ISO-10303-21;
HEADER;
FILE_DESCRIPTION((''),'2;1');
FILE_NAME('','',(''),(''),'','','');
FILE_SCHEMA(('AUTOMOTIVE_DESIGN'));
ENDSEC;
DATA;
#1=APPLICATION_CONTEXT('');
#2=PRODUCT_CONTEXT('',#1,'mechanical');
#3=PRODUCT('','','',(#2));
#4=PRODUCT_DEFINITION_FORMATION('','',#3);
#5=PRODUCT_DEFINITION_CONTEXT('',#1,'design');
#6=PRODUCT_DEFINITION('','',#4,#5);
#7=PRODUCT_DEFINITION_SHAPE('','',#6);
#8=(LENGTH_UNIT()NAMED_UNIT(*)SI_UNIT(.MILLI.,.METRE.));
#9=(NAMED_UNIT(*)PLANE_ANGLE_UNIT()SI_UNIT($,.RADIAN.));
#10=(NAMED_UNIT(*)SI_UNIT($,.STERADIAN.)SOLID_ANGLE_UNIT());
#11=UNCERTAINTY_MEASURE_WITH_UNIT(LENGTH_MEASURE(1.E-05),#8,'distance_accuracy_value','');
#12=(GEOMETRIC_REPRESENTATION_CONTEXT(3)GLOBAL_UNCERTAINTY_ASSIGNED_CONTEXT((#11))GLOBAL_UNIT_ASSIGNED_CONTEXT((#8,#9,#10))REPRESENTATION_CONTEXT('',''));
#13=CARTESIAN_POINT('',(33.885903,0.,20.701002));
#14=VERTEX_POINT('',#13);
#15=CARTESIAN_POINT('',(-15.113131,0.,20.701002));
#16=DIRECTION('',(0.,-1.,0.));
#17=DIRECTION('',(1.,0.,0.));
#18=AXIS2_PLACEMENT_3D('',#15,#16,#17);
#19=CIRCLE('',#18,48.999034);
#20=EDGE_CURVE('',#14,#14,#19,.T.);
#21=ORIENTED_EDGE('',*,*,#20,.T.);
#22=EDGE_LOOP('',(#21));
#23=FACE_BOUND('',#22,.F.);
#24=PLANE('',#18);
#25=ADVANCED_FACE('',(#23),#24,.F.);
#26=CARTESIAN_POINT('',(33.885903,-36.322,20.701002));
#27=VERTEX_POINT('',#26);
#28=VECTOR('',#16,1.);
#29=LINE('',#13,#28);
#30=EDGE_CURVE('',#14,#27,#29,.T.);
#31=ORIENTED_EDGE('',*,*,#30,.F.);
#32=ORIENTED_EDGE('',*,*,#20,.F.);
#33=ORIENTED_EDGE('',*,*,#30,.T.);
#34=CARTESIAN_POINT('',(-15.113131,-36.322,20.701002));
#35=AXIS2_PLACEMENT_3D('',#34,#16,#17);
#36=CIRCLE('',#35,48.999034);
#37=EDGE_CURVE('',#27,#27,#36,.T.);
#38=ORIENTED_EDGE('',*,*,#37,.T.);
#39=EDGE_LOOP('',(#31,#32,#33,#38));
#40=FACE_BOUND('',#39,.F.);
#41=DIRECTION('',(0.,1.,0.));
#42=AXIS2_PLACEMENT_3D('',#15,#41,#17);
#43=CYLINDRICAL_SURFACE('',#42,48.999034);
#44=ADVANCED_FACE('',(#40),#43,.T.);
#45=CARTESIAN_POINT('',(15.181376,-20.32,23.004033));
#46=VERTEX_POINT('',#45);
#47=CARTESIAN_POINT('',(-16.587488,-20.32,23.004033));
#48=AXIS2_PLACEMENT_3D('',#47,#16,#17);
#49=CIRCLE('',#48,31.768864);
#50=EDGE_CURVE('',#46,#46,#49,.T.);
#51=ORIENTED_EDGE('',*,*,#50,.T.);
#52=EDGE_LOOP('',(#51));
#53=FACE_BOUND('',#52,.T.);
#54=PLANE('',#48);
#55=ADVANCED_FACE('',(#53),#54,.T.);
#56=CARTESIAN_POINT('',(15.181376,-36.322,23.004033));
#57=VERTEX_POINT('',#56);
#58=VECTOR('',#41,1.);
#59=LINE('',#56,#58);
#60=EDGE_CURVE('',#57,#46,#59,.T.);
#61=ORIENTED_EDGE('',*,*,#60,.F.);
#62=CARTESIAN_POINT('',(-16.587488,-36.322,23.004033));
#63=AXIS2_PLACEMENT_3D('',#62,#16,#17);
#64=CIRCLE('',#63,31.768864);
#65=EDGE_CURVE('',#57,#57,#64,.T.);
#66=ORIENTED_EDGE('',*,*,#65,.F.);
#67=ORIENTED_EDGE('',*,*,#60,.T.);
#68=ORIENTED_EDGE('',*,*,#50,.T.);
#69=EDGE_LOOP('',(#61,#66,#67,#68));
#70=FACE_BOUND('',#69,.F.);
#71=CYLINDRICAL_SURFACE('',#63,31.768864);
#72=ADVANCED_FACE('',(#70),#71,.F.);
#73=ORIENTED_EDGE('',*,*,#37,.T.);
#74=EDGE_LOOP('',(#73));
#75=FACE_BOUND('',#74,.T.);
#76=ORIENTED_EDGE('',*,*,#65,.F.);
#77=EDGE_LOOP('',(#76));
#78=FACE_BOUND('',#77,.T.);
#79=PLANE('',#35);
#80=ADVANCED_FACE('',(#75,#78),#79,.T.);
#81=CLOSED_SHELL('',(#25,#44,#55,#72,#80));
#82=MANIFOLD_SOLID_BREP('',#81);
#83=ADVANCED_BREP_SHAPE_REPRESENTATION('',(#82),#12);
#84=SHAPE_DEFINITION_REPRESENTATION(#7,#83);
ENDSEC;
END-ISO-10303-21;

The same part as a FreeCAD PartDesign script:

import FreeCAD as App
import Part
import Sketcher

V = App.Vector
Q = App.Units.Quantity

doc = App.newDocument("Part")
body = doc.addObject("PartDesign::Body", "Body")

sketch1 = body.newObject("Sketcher::SketchObject", "Sketch")
sketch1.AttachmentSupport = (doc.getObject("XZ_Plane"), [""])
sketch1.MapMode = "FlatFace"
sketch1.addGeometry(Part.Circle(V(-15, 21, 0), V(0, 0, 1), 49), False)
sketch1.addConstraint([
    Sketcher.Constraint("Diameter", 0, 97.998068),
    Sketcher.Constraint("DistanceY", -1, 1, 0, 3, Q("0.8150001 in")),
    Sketcher.Constraint("DistanceX", 0, 3, -1, 1, 15.113131),
])
pad1 = body.newObject("PartDesign::Pad", "Pad")
pad1.Profile = sketch1
pad1.Length = Q("2 in")

sketch2 = body.newObject("Sketcher::SketchObject", "Sketch001")
sketch2.AttachmentSupport = (doc.getObject("XZ_Plane"), [""])
sketch2.MapMode = "FlatFace"
sketch2.AttachmentOffset = App.Placement(V(0, 0, 2 * 25.4), App.Rotation())
sketch2.addGeometry(Part.Circle(V(-15, 21, 0), V(0, 0, 1), 49), False)
sketch2.addConstraint([
    Sketcher.Constraint("Diameter", 0, 97.998068),
    Sketcher.Constraint("DistanceY", -1, 1, 0, 3, Q("0.8150001 in")),
    Sketcher.Constraint("DistanceX", 0, 3, -1, 1, 15.113131),
])
pocket1 = body.newObject("PartDesign::Pocket", "Pocket")
pocket1.Profile = sketch2
pocket1.Length = Q("0.57 in")

sketch3 = body.newObject("Sketcher::SketchObject", "Sketch002")
sketch3.AttachmentSupport = (doc.getObject("XZ_Plane"), [""])
sketch3.MapMode = "FlatFace"
sketch3.AttachmentOffset = App.Placement(V(0, 0, 1.43 * 25.4), App.Rotation())
sketch3.addGeometry(Part.Circle(V(-17, 23, 0), V(0, 0, 1), 32), False)
sketch3.addConstraint([
    Sketcher.Constraint("Diameter", 0, 63.537728),
    Sketcher.Constraint("DistanceX", 0, 3, -1, 1, 16.587488),
    Sketcher.Constraint("DistanceY", -1, 1, 0, 3, 23.004033),
])
pocket2 = body.newObject("PartDesign::Pocket", "Pocket001")
pocket2.Profile = sketch3
pocket2.Length = Q("0.63 in")

doc.recompute()
